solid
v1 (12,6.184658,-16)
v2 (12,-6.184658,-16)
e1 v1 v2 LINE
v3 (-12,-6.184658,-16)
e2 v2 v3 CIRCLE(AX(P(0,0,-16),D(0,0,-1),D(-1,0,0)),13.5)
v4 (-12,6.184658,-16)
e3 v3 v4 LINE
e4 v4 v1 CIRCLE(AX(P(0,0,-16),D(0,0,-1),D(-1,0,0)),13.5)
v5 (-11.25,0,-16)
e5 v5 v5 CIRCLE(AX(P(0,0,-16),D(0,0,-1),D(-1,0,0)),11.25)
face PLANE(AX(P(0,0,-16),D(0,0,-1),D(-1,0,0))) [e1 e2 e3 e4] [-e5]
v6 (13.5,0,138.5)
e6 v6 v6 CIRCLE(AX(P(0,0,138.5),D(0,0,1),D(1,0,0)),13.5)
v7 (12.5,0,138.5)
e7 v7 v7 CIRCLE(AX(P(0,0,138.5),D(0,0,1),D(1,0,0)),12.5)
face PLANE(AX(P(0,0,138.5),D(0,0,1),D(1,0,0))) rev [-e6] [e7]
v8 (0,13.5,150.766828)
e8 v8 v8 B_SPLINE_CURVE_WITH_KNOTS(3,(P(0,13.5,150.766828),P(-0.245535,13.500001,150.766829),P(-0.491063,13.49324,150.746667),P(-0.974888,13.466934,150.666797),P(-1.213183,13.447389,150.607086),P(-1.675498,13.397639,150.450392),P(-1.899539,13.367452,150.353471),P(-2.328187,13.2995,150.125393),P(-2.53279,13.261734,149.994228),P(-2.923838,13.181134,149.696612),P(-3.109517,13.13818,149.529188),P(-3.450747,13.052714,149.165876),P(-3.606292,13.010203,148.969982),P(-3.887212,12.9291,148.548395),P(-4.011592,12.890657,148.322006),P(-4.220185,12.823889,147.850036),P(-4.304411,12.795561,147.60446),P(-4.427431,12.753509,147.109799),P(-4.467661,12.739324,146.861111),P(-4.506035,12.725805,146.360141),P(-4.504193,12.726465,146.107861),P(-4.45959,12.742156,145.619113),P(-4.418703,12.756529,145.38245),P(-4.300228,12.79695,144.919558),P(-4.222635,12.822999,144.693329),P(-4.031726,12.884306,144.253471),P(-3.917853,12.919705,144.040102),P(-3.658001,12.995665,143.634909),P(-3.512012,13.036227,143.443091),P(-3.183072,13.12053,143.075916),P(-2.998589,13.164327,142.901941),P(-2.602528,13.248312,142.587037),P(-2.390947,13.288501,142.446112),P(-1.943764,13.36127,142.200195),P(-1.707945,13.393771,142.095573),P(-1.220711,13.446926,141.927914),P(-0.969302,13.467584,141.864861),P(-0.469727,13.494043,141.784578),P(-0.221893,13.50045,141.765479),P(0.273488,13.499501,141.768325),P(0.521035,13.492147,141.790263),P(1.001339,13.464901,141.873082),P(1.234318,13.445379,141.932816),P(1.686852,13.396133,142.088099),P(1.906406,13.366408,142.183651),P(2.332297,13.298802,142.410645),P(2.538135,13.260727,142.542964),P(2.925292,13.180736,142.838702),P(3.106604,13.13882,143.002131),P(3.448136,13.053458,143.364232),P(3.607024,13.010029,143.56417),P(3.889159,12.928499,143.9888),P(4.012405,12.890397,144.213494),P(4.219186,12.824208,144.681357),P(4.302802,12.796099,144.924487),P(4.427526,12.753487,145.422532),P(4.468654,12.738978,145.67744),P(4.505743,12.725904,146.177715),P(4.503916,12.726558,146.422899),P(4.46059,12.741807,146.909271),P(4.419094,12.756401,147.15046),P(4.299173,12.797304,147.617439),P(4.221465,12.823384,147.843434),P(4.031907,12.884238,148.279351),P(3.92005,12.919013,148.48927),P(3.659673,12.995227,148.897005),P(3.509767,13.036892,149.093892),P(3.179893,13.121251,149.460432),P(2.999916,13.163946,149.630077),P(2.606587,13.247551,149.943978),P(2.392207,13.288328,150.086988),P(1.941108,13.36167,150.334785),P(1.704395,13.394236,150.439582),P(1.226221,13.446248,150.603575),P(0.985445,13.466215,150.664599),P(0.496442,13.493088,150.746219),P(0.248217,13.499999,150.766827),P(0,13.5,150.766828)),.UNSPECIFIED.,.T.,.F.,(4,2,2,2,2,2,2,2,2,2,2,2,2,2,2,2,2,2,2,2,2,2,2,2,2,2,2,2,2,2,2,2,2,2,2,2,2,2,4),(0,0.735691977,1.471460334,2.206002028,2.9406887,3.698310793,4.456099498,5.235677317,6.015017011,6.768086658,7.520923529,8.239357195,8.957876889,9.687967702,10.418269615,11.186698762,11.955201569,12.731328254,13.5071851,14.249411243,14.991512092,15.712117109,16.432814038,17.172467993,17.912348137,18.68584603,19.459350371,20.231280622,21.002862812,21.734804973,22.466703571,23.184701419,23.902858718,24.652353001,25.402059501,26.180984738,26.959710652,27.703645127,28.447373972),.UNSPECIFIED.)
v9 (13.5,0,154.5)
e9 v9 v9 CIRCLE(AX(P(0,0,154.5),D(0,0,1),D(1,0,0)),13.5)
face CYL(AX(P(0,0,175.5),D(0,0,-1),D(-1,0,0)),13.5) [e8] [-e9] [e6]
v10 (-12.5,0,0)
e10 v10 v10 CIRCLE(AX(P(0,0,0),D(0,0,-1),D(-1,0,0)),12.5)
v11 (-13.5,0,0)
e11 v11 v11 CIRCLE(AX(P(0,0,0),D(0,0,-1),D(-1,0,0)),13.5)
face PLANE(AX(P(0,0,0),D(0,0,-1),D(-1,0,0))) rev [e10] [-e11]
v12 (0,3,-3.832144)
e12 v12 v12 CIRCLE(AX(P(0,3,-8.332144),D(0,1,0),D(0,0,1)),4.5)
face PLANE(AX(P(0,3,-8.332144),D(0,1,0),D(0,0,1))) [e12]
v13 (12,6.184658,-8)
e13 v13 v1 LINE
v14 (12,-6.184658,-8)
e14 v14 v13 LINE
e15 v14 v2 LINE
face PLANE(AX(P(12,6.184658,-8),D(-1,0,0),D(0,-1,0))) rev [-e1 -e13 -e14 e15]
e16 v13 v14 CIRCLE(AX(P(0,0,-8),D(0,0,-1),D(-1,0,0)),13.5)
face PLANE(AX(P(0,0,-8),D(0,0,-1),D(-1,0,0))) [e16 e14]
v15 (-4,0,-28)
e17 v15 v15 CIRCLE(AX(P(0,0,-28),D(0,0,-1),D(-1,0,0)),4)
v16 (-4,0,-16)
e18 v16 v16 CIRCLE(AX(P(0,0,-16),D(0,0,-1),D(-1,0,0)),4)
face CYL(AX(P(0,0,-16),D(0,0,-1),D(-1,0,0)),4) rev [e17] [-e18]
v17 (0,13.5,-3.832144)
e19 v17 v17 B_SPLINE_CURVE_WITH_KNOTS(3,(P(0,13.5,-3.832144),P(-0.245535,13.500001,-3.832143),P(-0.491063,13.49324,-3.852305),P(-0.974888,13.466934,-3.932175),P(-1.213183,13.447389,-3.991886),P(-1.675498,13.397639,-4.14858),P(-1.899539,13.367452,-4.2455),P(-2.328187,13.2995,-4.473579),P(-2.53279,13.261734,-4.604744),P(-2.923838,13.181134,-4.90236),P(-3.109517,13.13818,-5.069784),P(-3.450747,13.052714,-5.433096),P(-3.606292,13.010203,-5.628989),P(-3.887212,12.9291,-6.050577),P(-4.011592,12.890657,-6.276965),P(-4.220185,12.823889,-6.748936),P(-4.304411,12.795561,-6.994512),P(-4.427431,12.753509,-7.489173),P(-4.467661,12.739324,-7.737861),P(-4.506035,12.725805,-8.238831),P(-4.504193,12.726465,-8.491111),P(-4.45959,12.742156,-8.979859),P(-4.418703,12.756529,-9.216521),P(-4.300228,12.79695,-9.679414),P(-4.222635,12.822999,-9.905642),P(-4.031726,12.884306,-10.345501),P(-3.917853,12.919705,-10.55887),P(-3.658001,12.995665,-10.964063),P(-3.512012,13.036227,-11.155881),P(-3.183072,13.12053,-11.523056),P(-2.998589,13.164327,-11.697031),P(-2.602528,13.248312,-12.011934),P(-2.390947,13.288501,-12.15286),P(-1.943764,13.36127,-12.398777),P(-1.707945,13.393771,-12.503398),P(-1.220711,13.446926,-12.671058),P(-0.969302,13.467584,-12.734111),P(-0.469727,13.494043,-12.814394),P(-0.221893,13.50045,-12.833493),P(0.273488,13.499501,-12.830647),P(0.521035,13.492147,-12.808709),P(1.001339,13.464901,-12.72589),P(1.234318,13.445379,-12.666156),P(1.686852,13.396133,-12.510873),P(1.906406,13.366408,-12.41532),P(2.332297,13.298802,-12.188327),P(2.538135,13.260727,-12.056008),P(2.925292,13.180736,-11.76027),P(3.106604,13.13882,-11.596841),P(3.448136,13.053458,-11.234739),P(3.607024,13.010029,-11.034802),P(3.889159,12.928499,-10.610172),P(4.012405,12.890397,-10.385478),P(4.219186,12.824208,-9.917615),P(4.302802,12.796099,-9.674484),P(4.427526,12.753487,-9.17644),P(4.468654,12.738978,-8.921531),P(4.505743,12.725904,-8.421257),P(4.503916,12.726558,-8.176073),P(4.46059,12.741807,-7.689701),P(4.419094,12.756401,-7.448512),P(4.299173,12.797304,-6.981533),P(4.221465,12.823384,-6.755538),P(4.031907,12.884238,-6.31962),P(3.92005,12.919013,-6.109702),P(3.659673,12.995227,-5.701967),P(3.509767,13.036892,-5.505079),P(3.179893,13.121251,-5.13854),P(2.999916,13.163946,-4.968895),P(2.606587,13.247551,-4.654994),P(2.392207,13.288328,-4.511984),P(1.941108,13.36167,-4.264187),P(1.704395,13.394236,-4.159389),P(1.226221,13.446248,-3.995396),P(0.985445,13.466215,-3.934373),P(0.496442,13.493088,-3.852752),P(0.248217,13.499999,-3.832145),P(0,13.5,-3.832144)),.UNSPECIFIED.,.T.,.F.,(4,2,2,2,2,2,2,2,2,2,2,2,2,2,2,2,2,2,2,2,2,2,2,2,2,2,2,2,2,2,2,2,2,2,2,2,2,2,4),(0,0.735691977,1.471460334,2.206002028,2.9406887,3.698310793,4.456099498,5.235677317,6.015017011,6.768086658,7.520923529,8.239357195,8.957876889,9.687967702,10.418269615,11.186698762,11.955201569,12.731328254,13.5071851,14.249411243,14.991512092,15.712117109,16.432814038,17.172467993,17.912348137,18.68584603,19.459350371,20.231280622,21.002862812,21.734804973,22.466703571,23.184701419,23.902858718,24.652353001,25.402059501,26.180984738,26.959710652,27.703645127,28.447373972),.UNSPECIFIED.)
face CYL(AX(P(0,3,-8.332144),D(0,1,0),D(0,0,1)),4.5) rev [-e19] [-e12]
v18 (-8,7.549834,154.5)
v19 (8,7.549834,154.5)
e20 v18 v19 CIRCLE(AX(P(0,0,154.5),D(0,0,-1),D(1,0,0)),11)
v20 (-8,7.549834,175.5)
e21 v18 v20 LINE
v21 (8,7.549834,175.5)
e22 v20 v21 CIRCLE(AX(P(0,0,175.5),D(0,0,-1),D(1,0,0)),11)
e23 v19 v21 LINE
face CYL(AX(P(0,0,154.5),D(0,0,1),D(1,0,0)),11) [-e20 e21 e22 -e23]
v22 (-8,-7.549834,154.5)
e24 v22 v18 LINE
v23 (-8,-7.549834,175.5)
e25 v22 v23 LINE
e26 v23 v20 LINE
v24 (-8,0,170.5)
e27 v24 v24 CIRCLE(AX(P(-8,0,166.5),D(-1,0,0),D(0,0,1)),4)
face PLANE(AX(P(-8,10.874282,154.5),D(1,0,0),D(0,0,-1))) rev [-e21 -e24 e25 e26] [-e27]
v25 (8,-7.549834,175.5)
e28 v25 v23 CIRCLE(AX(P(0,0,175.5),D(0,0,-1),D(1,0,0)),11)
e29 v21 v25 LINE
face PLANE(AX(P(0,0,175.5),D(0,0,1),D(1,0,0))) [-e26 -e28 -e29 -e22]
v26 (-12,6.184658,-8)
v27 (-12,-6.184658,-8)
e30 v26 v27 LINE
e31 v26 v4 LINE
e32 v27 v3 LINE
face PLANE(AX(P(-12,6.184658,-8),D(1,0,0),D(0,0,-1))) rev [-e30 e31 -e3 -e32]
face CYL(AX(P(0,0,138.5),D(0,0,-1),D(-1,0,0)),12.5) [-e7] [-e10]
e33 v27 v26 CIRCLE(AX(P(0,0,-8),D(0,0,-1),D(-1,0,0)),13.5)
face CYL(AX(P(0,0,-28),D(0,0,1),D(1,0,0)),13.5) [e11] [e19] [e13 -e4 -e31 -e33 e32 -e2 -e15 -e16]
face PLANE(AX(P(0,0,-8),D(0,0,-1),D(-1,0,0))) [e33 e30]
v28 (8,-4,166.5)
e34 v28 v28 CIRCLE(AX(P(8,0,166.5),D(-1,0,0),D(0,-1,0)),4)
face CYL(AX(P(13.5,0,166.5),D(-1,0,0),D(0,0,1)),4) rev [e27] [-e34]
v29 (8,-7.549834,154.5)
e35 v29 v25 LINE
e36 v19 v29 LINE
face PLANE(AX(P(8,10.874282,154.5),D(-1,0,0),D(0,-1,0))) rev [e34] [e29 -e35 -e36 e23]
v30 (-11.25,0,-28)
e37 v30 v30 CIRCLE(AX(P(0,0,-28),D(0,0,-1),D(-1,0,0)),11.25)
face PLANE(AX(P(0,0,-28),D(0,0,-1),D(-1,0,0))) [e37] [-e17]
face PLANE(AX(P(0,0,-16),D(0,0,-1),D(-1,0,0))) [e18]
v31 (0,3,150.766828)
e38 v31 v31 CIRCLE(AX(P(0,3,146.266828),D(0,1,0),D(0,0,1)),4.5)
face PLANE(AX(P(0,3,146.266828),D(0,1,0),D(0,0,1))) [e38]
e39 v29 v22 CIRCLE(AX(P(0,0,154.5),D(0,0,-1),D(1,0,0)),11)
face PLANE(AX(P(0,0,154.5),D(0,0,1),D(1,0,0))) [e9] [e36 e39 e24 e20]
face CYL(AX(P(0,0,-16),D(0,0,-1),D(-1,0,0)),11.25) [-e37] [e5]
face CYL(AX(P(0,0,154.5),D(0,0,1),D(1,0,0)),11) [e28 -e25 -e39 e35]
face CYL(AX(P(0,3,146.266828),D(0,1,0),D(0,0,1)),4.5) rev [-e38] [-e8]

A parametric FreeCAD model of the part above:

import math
import FreeCAD as App
import Part
import Sketcher
from FreeCAD import Vector
Q = App.Units.Quantity

doc = App.newDocument("Part")
body = doc.addObject("PartDesign::Body", "Body")

# Sketch on XY plane
sketch1 = body.newObject("Sketcher::SketchObject", "Sketch")
sketch1.AttachmentSupport = (doc.getObject("XY_Plane"), [""])
sketch1.MapMode = "FlatFace"
sketch1.addGeometry(Part.Circle(Vector(0, 0, 0), Vector(0, 0, 1), 12), False)
sketch1.addConstraint(Sketcher.Constraint("Coincident", 0, 3, -1, 1))
sketch1.addConstraint(Sketcher.Constraint("Diameter", 0, Q("25 mm")))
pad1 = body.newObject("PartDesign::Pad", "Pad")
pad1.Profile = sketch1
pad1.Length = 138.5

# Sketch on XY plane
sketch2 = body.newObject("Sketcher::SketchObject", "Sketch001")
sketch2.AttachmentSupport = (doc.getObject("XY_Plane"), [""])
sketch2.MapMode = "FlatFace"
sketch2.AttachmentOffset = App.Placement(Vector(0, 0, 138.5), App.Rotation())
sketch2.addGeometry(Part.Circle(Vector(0, 0, 0), Vector(0, 0, 1), 14), False)
sketch2.addConstraint(Sketcher.Constraint("Coincident", 0, 3, -1, 1))
sketch2.addConstraint(Sketcher.Constraint("Diameter", 0, Q("27 mm")))
pad2 = body.newObject("PartDesign::Pad", "Pad001")
pad2.Profile = sketch2
pad2.Length = 37

# Sketch on XY plane
sketch3 = body.newObject("Sketcher::SketchObject", "Sketch002")
sketch3.AttachmentSupport = (doc.getObject("XY_Plane"), [""])
sketch3.MapMode = "FlatFace"
sketch3.AttachmentOffset = App.Placement(Vector(0, 0, -28), App.Rotation())
sketch3.addGeometry(Part.Circle(Vector(0, 0, 0), Vector(0, 0, 1), 14), False)
sketch3.addConstraint(Sketcher.Constraint("Coincident", 0, 3, -1, 1))
sketch3.addConstraint(Sketcher.Constraint("Diameter", 0, Q("27 mm")))
pad3 = body.newObject("PartDesign::Pad", "Pad002")
pad3.Profile = sketch3
pad3.Length = 28

# Sketch on XY plane
sketch4 = body.newObject("Sketcher::SketchObject", "Sketch003")
sketch4.AttachmentSupport = (doc.getObject("XY_Plane"), [""])
sketch4.MapMode = "FlatFace"
sketch4.AttachmentOffset = App.Placement(Vector(0, 0, 154.5), App.Rotation())
sketch4.addGeometry(Part.LineSegment(Vector(-8, -11, 0), Vector(-8, 11, 0)), False)
sketch4.addGeometry(Part.ArcOfCircle(Part.Circle(Vector(0, 0, 0), Vector(0, 0, 1), 13), math.radians(126), math.radians(234)), False)
sketch4.addGeometry(Part.LineSegment(Vector(8, 11, 0), Vector(8, -11, 0)), False)
sketch4.addGeometry(Part.ArcOfCircle(Part.Circle(Vector(0, 0, 0), Vector(0, 0, 1), 13), math.radians(-54), math.radians(54)), False)
sketch4.addConstraint(Sketcher.Constraint("Coincident", 0, 1, 1, 2))
sketch4.addConstraint(Sketcher.Constraint("Coincident", 1, 1, 0, 2))
sketch4.addConstraint(Sketcher.Constraint("Coincident", 2, 1, 3, 2))
sketch4.addConstraint(Sketcher.Constraint("Coincident", 3, 1, 2, 2))
sketch4.addConstraint(Sketcher.Constraint("Vertical", 0))
sketch4.addConstraint(Sketcher.Constraint("Vertical", 2))
sketch4.addConstraint(Sketcher.Constraint("Coincident", 1, 3, -1, 1))
sketch4.addConstraint(Sketcher.Constraint("Coincident", 3, 3, -1, 1))
sketch4.addConstraint(Sketcher.Constraint("Equal", 1, 3))
sketch4.addConstraint(Sketcher.Constraint("Horizontal", 1, 1, 2, 1))
sketch4.addConstraint(Sketcher.Constraint("Radius", 1, Q("13.5 mm")))
sketch4.addConstraint(Sketcher.Constraint("DistanceX", 0, 1, -1, 1, Q("8 mm")))
pocket1 = body.newObject("PartDesign::Pocket", "Pocket")
pocket1.Profile = sketch4
pocket1.Length = 21
pocket1.Reversed = True

# Sketch on YZ plane
sketch5 = body.newObject("Sketcher::SketchObject", "Sketch004")
sketch5.AttachmentSupport = (doc.getObject("YZ_Plane"), [""])
sketch5.MapMode = "FlatFace"
sketch5.AttachmentOffset = App.Placement(Vector(0, 0, -8), App.Rotation())
sketch5.addGeometry(Part.Circle(Vector(0, 166.5, 0), Vector(0, 0, 1), 4), False)
sketch5.addConstraint(Sketcher.Constraint("PointOnObject", 0, 3, -2))
sketch5.addConstraint(Sketcher.Constraint("Diameter", 0, Q("8 mm")))
sketch5.addConstraint(Sketcher.Constraint("DistanceY", -1, 1, 0, 3, Q("166.5 mm")))
pocket2 = body.newObject("PartDesign::Pocket", "Pocket001")
pocket2.Profile = sketch5
pocket2.Type = "ThroughAll"
pocket2.Reversed = True

# Sketch on XY plane
sketch6 = body.newObject("Sketcher::SketchObject", "Sketch005")
sketch6.AttachmentSupport = (doc.getObject("XY_Plane"), [""])
sketch6.MapMode = "FlatFace"
sketch6.AttachmentOffset = App.Placement(Vector(0, 0, 154.5), App.Rotation())
sketch6.addGeometry(Part.LineSegment(Vector(8, 7.5, 0), Vector(8, 10.9, 0)), False)
sketch6.addGeometry(Part.ArcOfCircle(Part.Circle(Vector(0, 0, 0), Vector(0, 0, 1), 13.5), math.radians(54), math.radians(126)), False)
sketch6.addGeometry(Part.LineSegment(Vector(-8, 10.9, 0), Vector(-8, 7.5, 0)), False)
sketch6.addGeometry(Part.ArcOfCircle(Part.Circle(Vector(0, 0, 0), Vector(0, 0, 1), 11), math.radians(43), math.radians(137)), False)
sketch6.addGeometry(Part.LineSegment(Vector(-8, -7.5, 0), Vector(-8, -10.9, 0)), False)
sketch6.addGeometry(Part.ArcOfCircle(Part.Circle(Vector(0, 0, 0), Vector(0, 0, 1), 13.5), math.radians(-126), math.radians(-54)), False)
sketch6.addGeometry(Part.LineSegment(Vector(8, -10.9, 0), Vector(8, -7.5, 0)), False)
sketch6.addGeometry(Part.ArcOfCircle(Part.Circle(Vector(0, 0, 0), Vector(0, 0, 1), 11), math.radians(-137), math.radians(-43)), False)
sketch6.addConstraint(Sketcher.Constraint("Coincident", 0, 2, 1, 1))
sketch6.addConstraint(Sketcher.Constraint("Coincident", 1, 2, 2, 1))
sketch6.addConstraint(Sketcher.Constraint("Coincident", 2, 2, 3, 2))
sketch6.addConstraint(Sketcher.Constraint("Coincident", 3, 1, 0, 1))
sketch6.addConstraint(Sketcher.Constraint("Coincident", 4, 2, 5, 1))
sketch6.addConstraint(Sketcher.Constraint("Coincident", 5, 2, 6, 1))
sketch6.addConstraint(Sketcher.Constraint("Coincident", 6, 2, 7, 2))
sketch6.addConstraint(Sketcher.Constraint("Coincident", 7, 1, 4, 1))
sketch6.addConstraint(Sketcher.Constraint("Vertical", 0))
sketch6.addConstraint(Sketcher.Constraint("Vertical", 2))
sketch6.addConstraint(Sketcher.Constraint("Vertical", 4))
sketch6.addConstraint(Sketcher.Constraint("Vertical", 6))
sketch6.addConstraint(Sketcher.Constraint("Coincident", 1, 3, -1, 1))
sketch6.addConstraint(Sketcher.Constraint("Coincident", 3, 3, -1, 1))
sketch6.addConstraint(Sketcher.Constraint("Coincident", 5, 3, -1, 1))
sketch6.addConstraint(Sketcher.Constraint("Coincident", 7, 3, -1, 1))
sketch6.addConstraint(Sketcher.Constraint("Equal", 1, 5))
sketch6.addConstraint(Sketcher.Constraint("Equal", 3, 7))
sketch6.addConstraint(Sketcher.Constraint("Horizontal", 0, 2, 1, 2))
sketch6.addConstraint(Sketcher.Constraint("Horizontal", 4, 2, 5, 2))
sketch6.addConstraint(Sketcher.Constraint("Vertical", 2, 2, 4, 2))
sketch6.addConstraint(Sketcher.Constraint("Radius", 3, Q("11 mm")))
sketch6.addConstraint(Sketcher.Constraint("Radius", 1, Q("13.5 mm")))
sketch6.addConstraint(Sketcher.Constraint("DistanceX", -1, 1, 0, 2, Q("8 mm")))
pocket3 = body.newObject("PartDesign::Pocket", "Pocket002")
pocket3.Profile = sketch6
pocket3.Length = 21
pocket3.Reversed = True

# Sketch on XY plane
sketch7 = body.newObject("Sketcher::SketchObject", "Sketch006")
sketch7.AttachmentSupport = (doc.getObject("XY_Plane"), [""])
sketch7.MapMode = "FlatFace"
sketch7.AttachmentOffset = App.Placement(Vector(0, 0, -28), App.Rotation())
sketch7.addGeometry(Part.LineSegment(Vector(12, -6, 0), Vector(12, 6, 0)), False)
sketch7.addGeometry(Part.ArcOfCircle(Part.Circle(Vector(0, 0, 0), Vector(0, 0, 1), 13), math.radians(-27), math.radians(27)), False)
sketch7.addGeometry(Part.LineSegment(Vector(-12, 6, 0), Vector(-12, -6, 0)), False)
sketch7.addGeometry(Part.ArcOfCircle(Part.Circle(Vector(0, 0, 0), Vector(0, 0, 1), 13), math.radians(153), math.radians(207)), False)
sketch7.addConstraint(Sketcher.Constraint("Coincident", 0, 1, 1, 1))
sketch7.addConstraint(Sketcher.Constraint("Coincident", 1, 2, 0, 2))
sketch7.addConstraint(Sketcher.Constraint("Coincident", 2, 1, 3, 1))
sketch7.addConstraint(Sketcher.Constraint("Coincident", 3, 2, 2, 2))
sketch7.addConstraint(Sketcher.Constraint("Vertical", 0))
sketch7.addConstraint(Sketcher.Constraint("Vertical", 2))
sketch7.addConstraint(Sketcher.Constraint("Coincident", 1, 3, -1, 1))
sketch7.addConstraint(Sketcher.Constraint("Coincident", 3, 3, -1, 1))
sketch7.addConstraint(Sketcher.Constraint("Equal", 1, 3))
sketch7.addConstraint(Sketcher.Constraint("Horizontal", 1, 2, 2, 1))
sketch7.addConstraint(Sketcher.Constraint("Radius", 1, Q("13.5 mm")))
sketch7.addConstraint(Sketcher.Constraint("DistanceX", -1, 1, 0, 1, Q("12 mm")))
pocket4 = body.newObject("PartDesign::Pocket", "Pocket003")
pocket4.Profile = sketch7
pocket4.Length = 20
pocket4.Reversed = True

# Sketch on XY plane
sketch8 = body.newObject("Sketcher::SketchObject", "Sketch007")
sketch8.AttachmentSupport = (doc.getObject("XY_Plane"), [""])
sketch8.MapMode = "FlatFace"
sketch8.AttachmentOffset = App.Placement(Vector(0, 0, -28), App.Rotation())
sketch8.addGeometry(Part.LineSegment(Vector(35, 35, 0), Vector(35, -35, 0)), False)
sketch8.addGeometry(Part.LineSegment(Vector(35, -35, 0), Vector(-35, -35, 0)), False)
sketch8.addGeometry(Part.LineSegment(Vector(-35, -35, 0), Vector(-35, 35, 0)), False)
sketch8.addGeometry(Part.LineSegment(Vector(-35, 35, 0), Vector(35, 35, 0)), False)
sketch8.addGeometry(Part.Circle(Vector(0, 0, 0), Vector(0, 0, 1), 11), False)
sketch8.addConstraint(Sketcher.Constraint("Coincident", 0, 2, 1, 1))
sketch8.addConstraint(Sketcher.Constraint("Coincident", 1, 2, 2, 1))
sketch8.addConstraint(Sketcher.Constraint("Coincident", 2, 2, 3, 1))
sketch8.addConstraint(Sketcher.Constraint("Coincident", 3, 2, 0, 1))
sketch8.addConstraint(Sketcher.Constraint("Vertical", 0))
sketch8.addConstraint(Sketcher.Constraint("Horizontal", 1))
sketch8.addConstraint(Sketcher.Constraint("Vertical", 2))
sketch8.addConstraint(Sketcher.Constraint("Horizontal", 3))
sketch8.addConstraint(Sketcher.Constraint("Coincident", 4, 3, -1, 1))
sketch8.addConstraint(Sketcher.Constraint("Symmetric", 0, 2, 2, 2, -1, 1))
sketch8.addConstraint(Sketcher.Constraint("Equal", 3, 0))
sketch8.addConstraint(Sketcher.Constraint("Diameter", 4, Q("22.5 mm")))
sketch8.addConstraint(Sketcher.Constraint("DistanceX", 1, 2, 1, 1, Q("70.41 mm")))
pocket5 = body.newObject("PartDesign::Pocket", "Pocket004")
pocket5.Profile = sketch8
pocket5.Length = 12
pocket5.Reversed = True

# Sketch on XZ plane
sketch9 = body.newObject("Sketcher::SketchObject", "Sketch008")
sketch9.AttachmentSupport = (doc.getObject("XZ_Plane"), [""])
sketch9.MapMode = "FlatFace"
sketch9.AttachmentOffset = App.Placement(Vector(0, 0, -15), App.Rotation())
sketch9.addGeometry(Part.Circle(Vector(0, 146.3, 0), Vector(0, 0, 1), 4.5), False)
sketch9.addGeometry(Part.Circle(Vector(0, -8.3, 0), Vector(0, 0, 1), 4.5), False)
sketch9.addConstraint(Sketcher.Constraint("Equal", 0, 1))
sketch9.addConstraint(Sketcher.Constraint("PointOnObject", 0, 3, -2))
sketch9.addConstraint(Sketcher.Constraint("PointOnObject", 1, 3, -2))
sketch9.addConstraint(Sketcher.Constraint("Diameter", 0, Q("9 mm")))
sketch9.addConstraint(Sketcher.Constraint("DistanceY", -1, 1, 0, 3, Q("146.266828 mm")))
sketch9.addConstraint(Sketcher.Constraint("DistanceY", 1, 3, 0, 3, Q("154.598972 mm")))
pocket6 = body.newObject("PartDesign::Pocket", "Pocket005")
pocket6.Profile = sketch9
pocket6.Length = 12
pocket6.Reversed = True

# Sketch on XY plane
sketch10 = body.newObject("Sketcher::SketchObject", "Sketch009")
sketch10.AttachmentSupport = (doc.getObject("XY_Plane"), [""])
sketch10.MapMode = "FlatFace"
sketch10.AttachmentOffset = App.Placement(Vector(0, 0, -28), App.Rotation())
sketch10.addGeometry(Part.Circle(Vector(0, 0, 0), Vector(0, 0, 1), 4), False)
sketch10.addConstraint(Sketcher.Constraint("Coincident", 0, 3, -1, 1))
sketch10.addConstraint(Sketcher.Constraint("Diameter", 0, Q("8 mm")))
pocket7 = body.newObject("PartDesign::Pocket", "Pocket006")
pocket7.Profile = sketch10
pocket7.Length = 12
pocket7.Reversed = True

doc.recompute()
